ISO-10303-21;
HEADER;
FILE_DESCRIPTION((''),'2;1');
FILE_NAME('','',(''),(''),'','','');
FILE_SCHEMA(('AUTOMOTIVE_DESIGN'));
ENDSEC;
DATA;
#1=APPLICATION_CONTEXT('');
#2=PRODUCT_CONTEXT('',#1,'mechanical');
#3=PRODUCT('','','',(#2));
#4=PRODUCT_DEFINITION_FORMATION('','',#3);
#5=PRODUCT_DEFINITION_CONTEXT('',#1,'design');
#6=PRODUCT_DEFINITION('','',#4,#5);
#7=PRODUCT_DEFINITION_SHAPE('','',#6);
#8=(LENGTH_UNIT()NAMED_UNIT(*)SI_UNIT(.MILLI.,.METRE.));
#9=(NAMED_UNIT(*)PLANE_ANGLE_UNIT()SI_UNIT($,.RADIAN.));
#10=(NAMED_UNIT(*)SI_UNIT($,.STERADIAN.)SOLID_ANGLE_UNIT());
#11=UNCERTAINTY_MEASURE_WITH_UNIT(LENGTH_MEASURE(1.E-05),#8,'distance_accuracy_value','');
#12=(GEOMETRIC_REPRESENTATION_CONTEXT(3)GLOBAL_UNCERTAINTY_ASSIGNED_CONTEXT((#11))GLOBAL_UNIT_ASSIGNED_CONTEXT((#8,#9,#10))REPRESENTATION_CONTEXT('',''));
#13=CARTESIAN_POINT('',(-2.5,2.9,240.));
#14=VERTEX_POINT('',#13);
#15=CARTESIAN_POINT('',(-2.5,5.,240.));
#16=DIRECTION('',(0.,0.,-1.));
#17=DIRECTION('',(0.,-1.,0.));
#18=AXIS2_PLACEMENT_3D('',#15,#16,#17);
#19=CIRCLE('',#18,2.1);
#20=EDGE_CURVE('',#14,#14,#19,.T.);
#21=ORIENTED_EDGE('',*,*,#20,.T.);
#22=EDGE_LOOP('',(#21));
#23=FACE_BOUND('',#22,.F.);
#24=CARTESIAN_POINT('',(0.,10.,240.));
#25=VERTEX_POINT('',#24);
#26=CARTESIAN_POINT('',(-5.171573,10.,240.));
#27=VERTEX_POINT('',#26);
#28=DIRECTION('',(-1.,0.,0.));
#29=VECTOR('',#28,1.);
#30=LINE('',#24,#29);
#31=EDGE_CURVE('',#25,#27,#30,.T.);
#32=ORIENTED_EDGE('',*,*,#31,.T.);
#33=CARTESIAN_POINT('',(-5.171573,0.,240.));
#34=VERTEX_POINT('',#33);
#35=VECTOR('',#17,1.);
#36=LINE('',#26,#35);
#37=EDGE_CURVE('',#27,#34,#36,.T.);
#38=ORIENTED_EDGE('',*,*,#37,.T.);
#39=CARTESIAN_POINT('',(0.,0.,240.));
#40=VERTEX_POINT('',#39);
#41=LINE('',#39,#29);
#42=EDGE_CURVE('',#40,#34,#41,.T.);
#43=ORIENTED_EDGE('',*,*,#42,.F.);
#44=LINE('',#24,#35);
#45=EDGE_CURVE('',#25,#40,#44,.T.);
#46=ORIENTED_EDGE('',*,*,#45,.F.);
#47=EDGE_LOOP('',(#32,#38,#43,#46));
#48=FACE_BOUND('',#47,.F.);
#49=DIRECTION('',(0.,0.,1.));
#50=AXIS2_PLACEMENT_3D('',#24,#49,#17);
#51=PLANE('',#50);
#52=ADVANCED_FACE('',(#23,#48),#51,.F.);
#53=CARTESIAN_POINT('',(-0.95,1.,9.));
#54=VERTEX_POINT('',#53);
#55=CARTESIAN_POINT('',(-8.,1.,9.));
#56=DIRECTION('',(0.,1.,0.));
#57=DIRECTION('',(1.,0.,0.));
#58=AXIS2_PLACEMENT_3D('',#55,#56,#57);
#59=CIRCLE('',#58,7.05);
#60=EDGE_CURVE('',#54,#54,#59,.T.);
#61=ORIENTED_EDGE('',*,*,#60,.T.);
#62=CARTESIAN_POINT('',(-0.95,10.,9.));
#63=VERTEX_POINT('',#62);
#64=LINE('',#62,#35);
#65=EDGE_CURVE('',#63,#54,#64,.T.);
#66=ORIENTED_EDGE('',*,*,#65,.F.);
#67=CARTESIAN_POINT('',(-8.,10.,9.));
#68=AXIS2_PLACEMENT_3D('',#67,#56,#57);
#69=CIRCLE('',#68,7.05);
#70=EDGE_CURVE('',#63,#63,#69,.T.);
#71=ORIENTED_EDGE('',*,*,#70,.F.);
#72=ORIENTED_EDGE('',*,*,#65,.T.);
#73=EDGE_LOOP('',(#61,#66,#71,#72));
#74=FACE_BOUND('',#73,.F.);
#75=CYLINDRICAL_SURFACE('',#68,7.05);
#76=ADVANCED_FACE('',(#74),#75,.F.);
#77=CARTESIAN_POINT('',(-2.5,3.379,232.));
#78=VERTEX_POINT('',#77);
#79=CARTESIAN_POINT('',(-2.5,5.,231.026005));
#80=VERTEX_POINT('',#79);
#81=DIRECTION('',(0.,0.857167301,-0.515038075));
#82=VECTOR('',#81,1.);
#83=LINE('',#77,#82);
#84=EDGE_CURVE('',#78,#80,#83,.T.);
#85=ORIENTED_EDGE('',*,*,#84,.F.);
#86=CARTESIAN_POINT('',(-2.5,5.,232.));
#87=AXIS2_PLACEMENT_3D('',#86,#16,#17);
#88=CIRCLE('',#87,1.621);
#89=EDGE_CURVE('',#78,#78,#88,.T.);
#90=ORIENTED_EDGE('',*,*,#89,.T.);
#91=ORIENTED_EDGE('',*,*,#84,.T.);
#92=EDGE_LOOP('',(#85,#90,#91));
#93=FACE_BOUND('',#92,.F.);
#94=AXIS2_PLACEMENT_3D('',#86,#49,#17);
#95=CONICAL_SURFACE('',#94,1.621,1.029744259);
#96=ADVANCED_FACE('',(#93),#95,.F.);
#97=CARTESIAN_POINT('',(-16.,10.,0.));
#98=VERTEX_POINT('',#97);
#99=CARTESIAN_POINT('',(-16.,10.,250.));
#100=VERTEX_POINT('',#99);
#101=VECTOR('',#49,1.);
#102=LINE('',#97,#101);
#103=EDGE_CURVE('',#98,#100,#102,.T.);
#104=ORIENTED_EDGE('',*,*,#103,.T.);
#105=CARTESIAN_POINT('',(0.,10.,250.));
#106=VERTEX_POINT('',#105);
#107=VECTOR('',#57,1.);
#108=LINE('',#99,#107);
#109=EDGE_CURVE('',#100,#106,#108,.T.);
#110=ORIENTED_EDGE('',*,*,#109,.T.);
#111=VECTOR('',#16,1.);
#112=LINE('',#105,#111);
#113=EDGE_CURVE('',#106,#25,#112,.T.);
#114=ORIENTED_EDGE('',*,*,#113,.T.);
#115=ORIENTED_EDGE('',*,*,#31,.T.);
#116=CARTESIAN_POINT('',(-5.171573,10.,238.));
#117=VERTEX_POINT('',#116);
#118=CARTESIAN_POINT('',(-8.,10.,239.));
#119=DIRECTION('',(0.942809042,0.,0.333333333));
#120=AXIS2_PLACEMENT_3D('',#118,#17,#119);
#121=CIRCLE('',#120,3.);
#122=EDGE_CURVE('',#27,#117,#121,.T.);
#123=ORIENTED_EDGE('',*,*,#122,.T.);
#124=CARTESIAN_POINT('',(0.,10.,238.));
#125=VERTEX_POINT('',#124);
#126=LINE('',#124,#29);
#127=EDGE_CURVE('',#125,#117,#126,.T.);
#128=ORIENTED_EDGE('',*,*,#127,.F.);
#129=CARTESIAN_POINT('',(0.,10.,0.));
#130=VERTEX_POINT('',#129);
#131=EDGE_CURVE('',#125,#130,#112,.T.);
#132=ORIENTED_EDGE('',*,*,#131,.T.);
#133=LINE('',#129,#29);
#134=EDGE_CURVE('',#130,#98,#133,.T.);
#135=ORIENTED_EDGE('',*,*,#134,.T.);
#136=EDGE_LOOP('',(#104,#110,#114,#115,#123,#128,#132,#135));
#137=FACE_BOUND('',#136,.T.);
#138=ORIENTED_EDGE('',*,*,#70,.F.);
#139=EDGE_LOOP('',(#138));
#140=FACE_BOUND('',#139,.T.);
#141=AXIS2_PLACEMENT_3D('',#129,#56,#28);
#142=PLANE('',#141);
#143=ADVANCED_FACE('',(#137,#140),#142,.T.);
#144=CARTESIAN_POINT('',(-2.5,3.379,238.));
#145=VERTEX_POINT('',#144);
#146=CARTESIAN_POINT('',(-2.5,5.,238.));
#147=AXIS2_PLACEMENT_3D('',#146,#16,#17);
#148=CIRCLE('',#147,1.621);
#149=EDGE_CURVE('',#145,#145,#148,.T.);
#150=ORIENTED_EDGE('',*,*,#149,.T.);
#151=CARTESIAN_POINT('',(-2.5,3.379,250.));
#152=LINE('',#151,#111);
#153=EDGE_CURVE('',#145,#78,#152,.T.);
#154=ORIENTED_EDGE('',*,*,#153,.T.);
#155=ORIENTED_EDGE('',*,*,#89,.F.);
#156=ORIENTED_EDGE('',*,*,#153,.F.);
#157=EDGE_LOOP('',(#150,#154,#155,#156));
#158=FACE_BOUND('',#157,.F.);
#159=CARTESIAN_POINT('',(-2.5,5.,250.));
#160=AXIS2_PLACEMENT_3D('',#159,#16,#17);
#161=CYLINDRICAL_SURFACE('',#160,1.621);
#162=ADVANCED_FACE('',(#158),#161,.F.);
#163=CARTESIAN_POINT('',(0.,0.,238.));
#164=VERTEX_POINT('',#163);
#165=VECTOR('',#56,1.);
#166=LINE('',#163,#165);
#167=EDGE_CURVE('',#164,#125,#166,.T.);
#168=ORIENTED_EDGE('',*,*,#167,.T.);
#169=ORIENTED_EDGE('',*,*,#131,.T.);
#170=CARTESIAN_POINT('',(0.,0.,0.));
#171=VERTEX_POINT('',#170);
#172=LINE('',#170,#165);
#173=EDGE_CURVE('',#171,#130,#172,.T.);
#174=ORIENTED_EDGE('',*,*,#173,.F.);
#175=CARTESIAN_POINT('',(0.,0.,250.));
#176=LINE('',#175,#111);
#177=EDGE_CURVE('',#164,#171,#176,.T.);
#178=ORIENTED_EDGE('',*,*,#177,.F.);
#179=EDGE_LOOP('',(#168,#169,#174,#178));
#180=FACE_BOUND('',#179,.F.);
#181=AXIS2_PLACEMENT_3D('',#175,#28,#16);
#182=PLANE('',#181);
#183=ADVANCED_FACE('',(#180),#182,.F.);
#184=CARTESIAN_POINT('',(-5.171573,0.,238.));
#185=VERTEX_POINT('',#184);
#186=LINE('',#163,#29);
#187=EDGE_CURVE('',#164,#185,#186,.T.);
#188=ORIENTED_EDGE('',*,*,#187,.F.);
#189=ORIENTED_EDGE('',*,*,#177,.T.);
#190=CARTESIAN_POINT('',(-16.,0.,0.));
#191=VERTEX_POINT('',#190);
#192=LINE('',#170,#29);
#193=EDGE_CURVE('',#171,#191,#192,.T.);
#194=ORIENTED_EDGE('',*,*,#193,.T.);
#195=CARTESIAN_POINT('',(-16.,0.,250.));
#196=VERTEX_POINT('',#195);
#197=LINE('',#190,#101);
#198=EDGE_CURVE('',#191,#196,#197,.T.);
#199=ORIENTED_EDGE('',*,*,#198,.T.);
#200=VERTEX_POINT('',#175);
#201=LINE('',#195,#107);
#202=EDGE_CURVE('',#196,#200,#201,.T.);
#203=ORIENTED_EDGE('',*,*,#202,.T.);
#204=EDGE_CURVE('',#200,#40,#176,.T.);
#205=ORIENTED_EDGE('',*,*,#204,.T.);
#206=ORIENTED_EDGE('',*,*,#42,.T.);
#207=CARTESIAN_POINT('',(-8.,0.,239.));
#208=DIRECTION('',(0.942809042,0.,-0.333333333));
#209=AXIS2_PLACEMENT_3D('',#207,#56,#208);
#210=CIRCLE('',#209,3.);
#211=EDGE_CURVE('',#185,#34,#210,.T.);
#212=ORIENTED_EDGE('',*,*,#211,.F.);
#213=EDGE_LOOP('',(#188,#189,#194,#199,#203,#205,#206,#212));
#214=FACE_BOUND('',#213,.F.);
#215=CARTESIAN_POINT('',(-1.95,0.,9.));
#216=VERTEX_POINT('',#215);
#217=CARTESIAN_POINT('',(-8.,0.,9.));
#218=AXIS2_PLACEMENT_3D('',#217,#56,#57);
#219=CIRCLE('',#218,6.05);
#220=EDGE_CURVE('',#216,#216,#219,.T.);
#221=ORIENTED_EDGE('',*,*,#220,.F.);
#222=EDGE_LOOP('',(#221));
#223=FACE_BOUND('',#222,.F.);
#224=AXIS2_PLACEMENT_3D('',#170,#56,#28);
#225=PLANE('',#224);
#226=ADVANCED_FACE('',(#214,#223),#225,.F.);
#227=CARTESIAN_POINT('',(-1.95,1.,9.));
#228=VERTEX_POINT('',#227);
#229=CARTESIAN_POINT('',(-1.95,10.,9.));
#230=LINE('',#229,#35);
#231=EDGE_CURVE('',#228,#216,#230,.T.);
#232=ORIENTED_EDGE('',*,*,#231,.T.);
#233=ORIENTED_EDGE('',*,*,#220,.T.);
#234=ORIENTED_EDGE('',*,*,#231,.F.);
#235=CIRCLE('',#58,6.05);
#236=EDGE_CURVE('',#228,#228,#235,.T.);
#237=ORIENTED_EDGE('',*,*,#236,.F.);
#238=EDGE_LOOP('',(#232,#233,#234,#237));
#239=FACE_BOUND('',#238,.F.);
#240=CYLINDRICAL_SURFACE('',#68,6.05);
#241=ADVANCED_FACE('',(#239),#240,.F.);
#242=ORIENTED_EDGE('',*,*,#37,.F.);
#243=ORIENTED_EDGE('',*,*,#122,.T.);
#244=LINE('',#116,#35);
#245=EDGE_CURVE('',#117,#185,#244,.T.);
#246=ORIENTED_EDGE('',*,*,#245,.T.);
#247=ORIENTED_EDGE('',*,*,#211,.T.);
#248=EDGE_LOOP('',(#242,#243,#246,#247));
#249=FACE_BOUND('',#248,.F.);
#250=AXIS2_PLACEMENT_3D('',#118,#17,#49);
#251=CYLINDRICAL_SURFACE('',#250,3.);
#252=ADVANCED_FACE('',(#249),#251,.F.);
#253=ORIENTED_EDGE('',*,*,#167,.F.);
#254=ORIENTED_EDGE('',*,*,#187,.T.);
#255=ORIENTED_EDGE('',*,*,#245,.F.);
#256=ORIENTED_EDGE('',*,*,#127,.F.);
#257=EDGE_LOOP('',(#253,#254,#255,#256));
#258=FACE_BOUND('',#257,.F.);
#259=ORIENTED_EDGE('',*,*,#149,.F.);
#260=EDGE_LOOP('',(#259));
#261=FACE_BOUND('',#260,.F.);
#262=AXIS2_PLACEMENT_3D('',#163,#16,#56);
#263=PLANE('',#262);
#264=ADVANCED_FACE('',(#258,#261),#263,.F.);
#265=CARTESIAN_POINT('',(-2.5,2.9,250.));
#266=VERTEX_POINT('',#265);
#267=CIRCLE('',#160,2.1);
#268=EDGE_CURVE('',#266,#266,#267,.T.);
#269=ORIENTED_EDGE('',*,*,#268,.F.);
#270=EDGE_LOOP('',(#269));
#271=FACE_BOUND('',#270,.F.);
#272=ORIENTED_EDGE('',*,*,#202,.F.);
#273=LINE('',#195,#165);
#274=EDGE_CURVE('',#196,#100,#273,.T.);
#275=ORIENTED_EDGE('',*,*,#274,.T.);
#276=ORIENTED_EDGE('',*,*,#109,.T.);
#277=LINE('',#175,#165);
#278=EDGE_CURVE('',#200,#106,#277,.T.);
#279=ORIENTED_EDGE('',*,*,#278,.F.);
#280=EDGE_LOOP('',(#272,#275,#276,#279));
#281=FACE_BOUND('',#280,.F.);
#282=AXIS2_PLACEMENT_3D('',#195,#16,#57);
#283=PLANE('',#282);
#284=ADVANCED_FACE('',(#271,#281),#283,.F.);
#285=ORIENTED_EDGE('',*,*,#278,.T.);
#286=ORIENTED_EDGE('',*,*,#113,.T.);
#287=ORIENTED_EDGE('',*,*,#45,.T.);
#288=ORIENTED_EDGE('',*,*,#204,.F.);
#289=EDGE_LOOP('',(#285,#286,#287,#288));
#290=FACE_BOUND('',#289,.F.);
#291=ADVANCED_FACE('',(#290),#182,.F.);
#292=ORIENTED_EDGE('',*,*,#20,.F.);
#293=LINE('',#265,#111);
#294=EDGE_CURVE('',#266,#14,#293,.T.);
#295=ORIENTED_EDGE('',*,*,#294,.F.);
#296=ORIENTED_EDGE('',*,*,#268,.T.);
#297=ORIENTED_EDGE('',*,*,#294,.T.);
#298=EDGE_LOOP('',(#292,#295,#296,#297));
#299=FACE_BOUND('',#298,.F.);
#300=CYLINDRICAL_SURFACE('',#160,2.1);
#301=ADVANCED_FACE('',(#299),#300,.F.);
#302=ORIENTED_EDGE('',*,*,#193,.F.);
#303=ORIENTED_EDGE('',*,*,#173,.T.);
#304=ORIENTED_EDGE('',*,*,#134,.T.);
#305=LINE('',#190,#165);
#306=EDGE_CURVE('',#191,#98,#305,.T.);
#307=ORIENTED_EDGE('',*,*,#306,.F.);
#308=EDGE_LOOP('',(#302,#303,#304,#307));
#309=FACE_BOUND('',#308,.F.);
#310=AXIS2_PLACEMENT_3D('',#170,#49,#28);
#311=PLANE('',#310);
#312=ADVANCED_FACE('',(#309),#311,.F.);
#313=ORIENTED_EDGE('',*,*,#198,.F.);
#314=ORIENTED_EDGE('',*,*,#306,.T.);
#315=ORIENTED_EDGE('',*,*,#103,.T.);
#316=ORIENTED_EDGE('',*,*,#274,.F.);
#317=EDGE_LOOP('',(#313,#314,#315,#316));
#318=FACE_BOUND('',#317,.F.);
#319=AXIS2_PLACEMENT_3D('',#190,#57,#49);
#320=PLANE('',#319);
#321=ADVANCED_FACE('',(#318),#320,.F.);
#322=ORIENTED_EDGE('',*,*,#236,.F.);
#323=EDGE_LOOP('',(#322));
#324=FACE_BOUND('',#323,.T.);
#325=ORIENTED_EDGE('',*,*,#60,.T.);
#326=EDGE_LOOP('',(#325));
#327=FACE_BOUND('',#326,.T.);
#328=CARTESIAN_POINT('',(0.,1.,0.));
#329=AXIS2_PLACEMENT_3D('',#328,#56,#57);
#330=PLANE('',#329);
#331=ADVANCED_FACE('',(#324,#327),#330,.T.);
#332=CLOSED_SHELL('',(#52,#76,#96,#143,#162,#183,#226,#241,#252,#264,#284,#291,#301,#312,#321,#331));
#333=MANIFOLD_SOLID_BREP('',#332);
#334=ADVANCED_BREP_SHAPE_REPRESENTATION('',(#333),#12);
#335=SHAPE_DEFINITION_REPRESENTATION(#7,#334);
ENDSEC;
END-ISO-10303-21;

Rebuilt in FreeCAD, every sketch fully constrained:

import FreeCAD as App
import Part
import Sketcher

V = App.Vector
Q = App.Units.Quantity


def add_polygon(sketch, points):
    """Adds a closed chain of lines whose ends are joined by coincident constraints."""
    first, n = sketch.GeometryCount, len(points)
    for a, b in zip(points, points[1:] + points[:1]):
        sketch.addGeometry(Part.LineSegment(App.Vector(*a, 0), App.Vector(*b, 0)), False)
    for i in range(n):
        sketch.addConstraint(Sketcher.Constraint("Coincident", first + i, 2, first + (i + 1) % n, 1))

doc = App.newDocument("Part")
body = doc.addObject("PartDesign::Body", "Body")

# Sketch on XZ plane
sketch1 = doc.addObject("Sketcher::SketchObject", "Sketch")
body.addObject(sketch1)
sketch1.AttachmentSupport = (doc.XZ_Plane, [""])
sketch1.MapMode = "FlatFace"
add_polygon(sketch1, [(0, 250), (0, 0), (-16, 0), (-16, 250)])  # lines 0-3
sketch1.addConstraint(Sketcher.Constraint("Vertical", 0))
sketch1.addConstraint(Sketcher.Constraint("Horizontal", 1))
sketch1.addConstraint(Sketcher.Constraint("Vertical", 2))
sketch1.addConstraint(Sketcher.Constraint("Horizontal", 3))
sketch1.addConstraint(Sketcher.Constraint("Coincident", 0, 2, -1, 1))
sketch1.addConstraint(Sketcher.Constraint("DistanceX", 1, 2, 1, 1, Q("16 mm")))
sketch1.addConstraint(Sketcher.Constraint("DistanceY", 0, 2, 0, 1, Q("250 mm")))
pad1 = doc.addObject("PartDesign::Pad", "Pad")
body.addObject(pad1)
pad1.Profile = sketch1
pad1.Length = 10
pad1.Reversed = True

# Sketch on YZ plane
sketch2 = doc.addObject("Sketcher::SketchObject", "Sketch001")
body.addObject(sketch2)
sketch2.AttachmentSupport = (doc.YZ_Plane, [""])
sketch2.MapMode = "FlatFace"
add_polygon(sketch2, [(0, 240), (0, 238), (10, 238), (10, 240)])  # lines 0-3
sketch2.addConstraint(Sketcher.Constraint("Vertical", 0))
sketch2.addConstraint(Sketcher.Constraint("Horizontal", 1))
sketch2.addConstraint(Sketcher.Constraint("Vertical", 2))
sketch2.addConstraint(Sketcher.Constraint("Horizontal", 3))
sketch2.addConstraint(Sketcher.Constraint("PointOnObject", 0, 2, -2))
sketch2.addConstraint(Sketcher.Constraint("DistanceX", 1, 1, 1, 2, Q("10 mm")))
sketch2.addConstraint(Sketcher.Constraint("DistanceY", 0, 2, 0, 1, Q("2 mm")))
sketch2.addConstraint(Sketcher.Constraint("DistanceY", -1, 1, 0, 2, Q("238 mm")))
pocket1 = doc.addObject("PartDesign::Pocket", "Pocket")
body.addObject(pocket1)
pocket1.Profile = sketch2
pocket1.Length = 7.5

# Sketch on XY plane
sketch3 = doc.addObject("Sketcher::SketchObject", "Sketch002")
body.addObject(sketch3)
sketch3.AttachmentSupport = (doc.XY_Plane, [""])
sketch3.MapMode = "FlatFace"
sketch3.AttachmentOffset = App.Placement(V(0, 0, 250), App.Rotation())
sketch3.addGeometry(Part.Circle(V(-2.5, 5, 0), V(0, 0, 1), 2.1), False)
sketch3.addConstraint(Sketcher.Constraint("Diameter", 0, Q("4.2 mm")))
sketch3.addConstraint(Sketcher.Constraint("DistanceY", -1, 1, 0, 3, Q("5 mm")))
sketch3.addConstraint(Sketcher.Constraint("DistanceX", 0, 3, -1, 1, Q("2.5 mm")))
doc.recompute()
hole = doc.addObject("PartDesign::Hole", "Hole")
body.addObject(hole)
hole.Profile = sketch3
hole.ThreadType = "None"
hole.Diameter = 4.2
hole.DepthType = "Dimension"
hole.Depth = 12
hole.DrillPoint = "Flat"

# Sketch on XZ plane
sketch4 = doc.addObject("Sketcher::SketchObject", "Sketch003")
body.addObject(sketch4)
sketch4.AttachmentSupport = (doc.XZ_Plane, [""])
sketch4.MapMode = "FlatFace"
sketch4.AttachmentOffset = App.Placement(V(0, 0, -10), App.Rotation())
sketch4.addGeometry(Part.Circle(V(-8, 239, 0), V(0, 0, 1), 3), False)
sketch4.addConstraint(Sketcher.Constraint("Diameter", 0, Q("6 mm")))
sketch4.addConstraint(Sketcher.Constraint("DistanceX", 0, 3, -1, 1, Q("8 mm")))
sketch4.addConstraint(Sketcher.Constraint("DistanceY", -1, 1, 0, 3, Q("239 mm")))
doc.recompute()
hole2 = doc.addObject("PartDesign::Hole", "Hole001")
body.addObject(hole2)
hole2.Profile = sketch4
hole2.ThreadType = "None"
hole2.Diameter = 6
hole2.DepthType = "Dimension"
hole2.Depth = 18
hole2.DrillPoint = "Angled"
hole2.DrillPointAngle = 118
hole2.Reversed = True

# Sketch on XZ plane
sketch5 = doc.addObject("Sketcher::SketchObject", "Sketch004")
body.addObject(sketch5)
sketch5.AttachmentSupport = (doc.XZ_Plane, [""])
sketch5.MapMode = "FlatFace"
sketch5.AttachmentOffset = App.Placement(V(0, 0, -10), App.Rotation())
sketch5.addGeometry(Part.Circle(V(-8, 9, 0), V(0, 0, 1), 7.05), False)
sketch5.addConstraint(Sketcher.Constraint("Diameter", 0, Q("14.1 mm")))
sketch5.addConstraint(Sketcher.Constraint("DistanceX", 0, 3, -1, 1, Q("8 mm")))
sketch5.addConstraint(Sketcher.Constraint("DistanceY", -1, 1, 0, 3, Q("9 mm")))
pocket2 = doc.addObject("PartDesign::Pocket", "Pocket001")
body.addObject(pocket2)
pocket2.Profile = sketch5
pocket2.Length = 9
pocket2.Reversed = True

# Sketch on XZ plane
sketch6 = doc.addObject("Sketcher::SketchObject", "Sketch005")
body.addObject(sketch6)
sketch6.AttachmentSupport = (doc.XZ_Plane, [""])
sketch6.MapMode = "FlatFace"
sketch6.AttachmentOffset = App.Placement(V(0, 0, -10), App.Rotation())
sketch6.addGeometry(Part.Circle(V(-8, 9, 0), V(0, 0, 1), 6.05), False)
sketch6.addConstraint(Sketcher.Constraint("Diameter", 0, Q("12.1 mm")))
sketch6.addConstraint(Sketcher.Constraint("DistanceX", 0, 3, -1, 1, Q("8 mm")))
sketch6.addConstraint(Sketcher.Constraint("DistanceY", -1, 1, 0, 3, Q("9 mm")))
pocket3 = doc.addObject("PartDesign::Pocket", "Pocket002")
body.addObject(pocket3)
pocket3.Profile = sketch6
pocket3.Type = "ThroughAll"
pocket3.Reversed = True

# Sketch on XY plane
sketch7 = doc.addObject("Sketcher::SketchObject", "Sketch006")
body.addObject(sketch7)
sketch7.AttachmentSupport = (doc.XY_Plane, [""])
sketch7.MapMode = "FlatFace"
sketch7.AttachmentOffset = App.Placement(V(0, 0, 250), App.Rotation())
sketch7.addGeometry(Part.Circle(V(-2.5, 5, 0), V(0, 0, 1), 1.621), False)
sketch7.addConstraint(Sketcher.Constraint("Diameter", 0, Q("3.242 mm")))
sketch7.addConstraint(Sketcher.Constraint("DistanceY", -1, 1, 0, 3, Q("5 mm")))
sketch7.addConstraint(Sketcher.Constraint("DistanceX", 0, 3, -1, 1, Q("2.5 mm")))
doc.recompute()
hole3 = doc.addObject("PartDesign::Hole", "Hole002")
body.addObject(hole3)
hole3.Profile = sketch7
hole3.ThreadType = "None"
hole3.Diameter = 3.242
hole3.DepthType = "Dimension"
hole3.Depth = 18
hole3.DrillPoint = "Angled"
hole3.DrillPointAngle = 118

doc.recompute()
